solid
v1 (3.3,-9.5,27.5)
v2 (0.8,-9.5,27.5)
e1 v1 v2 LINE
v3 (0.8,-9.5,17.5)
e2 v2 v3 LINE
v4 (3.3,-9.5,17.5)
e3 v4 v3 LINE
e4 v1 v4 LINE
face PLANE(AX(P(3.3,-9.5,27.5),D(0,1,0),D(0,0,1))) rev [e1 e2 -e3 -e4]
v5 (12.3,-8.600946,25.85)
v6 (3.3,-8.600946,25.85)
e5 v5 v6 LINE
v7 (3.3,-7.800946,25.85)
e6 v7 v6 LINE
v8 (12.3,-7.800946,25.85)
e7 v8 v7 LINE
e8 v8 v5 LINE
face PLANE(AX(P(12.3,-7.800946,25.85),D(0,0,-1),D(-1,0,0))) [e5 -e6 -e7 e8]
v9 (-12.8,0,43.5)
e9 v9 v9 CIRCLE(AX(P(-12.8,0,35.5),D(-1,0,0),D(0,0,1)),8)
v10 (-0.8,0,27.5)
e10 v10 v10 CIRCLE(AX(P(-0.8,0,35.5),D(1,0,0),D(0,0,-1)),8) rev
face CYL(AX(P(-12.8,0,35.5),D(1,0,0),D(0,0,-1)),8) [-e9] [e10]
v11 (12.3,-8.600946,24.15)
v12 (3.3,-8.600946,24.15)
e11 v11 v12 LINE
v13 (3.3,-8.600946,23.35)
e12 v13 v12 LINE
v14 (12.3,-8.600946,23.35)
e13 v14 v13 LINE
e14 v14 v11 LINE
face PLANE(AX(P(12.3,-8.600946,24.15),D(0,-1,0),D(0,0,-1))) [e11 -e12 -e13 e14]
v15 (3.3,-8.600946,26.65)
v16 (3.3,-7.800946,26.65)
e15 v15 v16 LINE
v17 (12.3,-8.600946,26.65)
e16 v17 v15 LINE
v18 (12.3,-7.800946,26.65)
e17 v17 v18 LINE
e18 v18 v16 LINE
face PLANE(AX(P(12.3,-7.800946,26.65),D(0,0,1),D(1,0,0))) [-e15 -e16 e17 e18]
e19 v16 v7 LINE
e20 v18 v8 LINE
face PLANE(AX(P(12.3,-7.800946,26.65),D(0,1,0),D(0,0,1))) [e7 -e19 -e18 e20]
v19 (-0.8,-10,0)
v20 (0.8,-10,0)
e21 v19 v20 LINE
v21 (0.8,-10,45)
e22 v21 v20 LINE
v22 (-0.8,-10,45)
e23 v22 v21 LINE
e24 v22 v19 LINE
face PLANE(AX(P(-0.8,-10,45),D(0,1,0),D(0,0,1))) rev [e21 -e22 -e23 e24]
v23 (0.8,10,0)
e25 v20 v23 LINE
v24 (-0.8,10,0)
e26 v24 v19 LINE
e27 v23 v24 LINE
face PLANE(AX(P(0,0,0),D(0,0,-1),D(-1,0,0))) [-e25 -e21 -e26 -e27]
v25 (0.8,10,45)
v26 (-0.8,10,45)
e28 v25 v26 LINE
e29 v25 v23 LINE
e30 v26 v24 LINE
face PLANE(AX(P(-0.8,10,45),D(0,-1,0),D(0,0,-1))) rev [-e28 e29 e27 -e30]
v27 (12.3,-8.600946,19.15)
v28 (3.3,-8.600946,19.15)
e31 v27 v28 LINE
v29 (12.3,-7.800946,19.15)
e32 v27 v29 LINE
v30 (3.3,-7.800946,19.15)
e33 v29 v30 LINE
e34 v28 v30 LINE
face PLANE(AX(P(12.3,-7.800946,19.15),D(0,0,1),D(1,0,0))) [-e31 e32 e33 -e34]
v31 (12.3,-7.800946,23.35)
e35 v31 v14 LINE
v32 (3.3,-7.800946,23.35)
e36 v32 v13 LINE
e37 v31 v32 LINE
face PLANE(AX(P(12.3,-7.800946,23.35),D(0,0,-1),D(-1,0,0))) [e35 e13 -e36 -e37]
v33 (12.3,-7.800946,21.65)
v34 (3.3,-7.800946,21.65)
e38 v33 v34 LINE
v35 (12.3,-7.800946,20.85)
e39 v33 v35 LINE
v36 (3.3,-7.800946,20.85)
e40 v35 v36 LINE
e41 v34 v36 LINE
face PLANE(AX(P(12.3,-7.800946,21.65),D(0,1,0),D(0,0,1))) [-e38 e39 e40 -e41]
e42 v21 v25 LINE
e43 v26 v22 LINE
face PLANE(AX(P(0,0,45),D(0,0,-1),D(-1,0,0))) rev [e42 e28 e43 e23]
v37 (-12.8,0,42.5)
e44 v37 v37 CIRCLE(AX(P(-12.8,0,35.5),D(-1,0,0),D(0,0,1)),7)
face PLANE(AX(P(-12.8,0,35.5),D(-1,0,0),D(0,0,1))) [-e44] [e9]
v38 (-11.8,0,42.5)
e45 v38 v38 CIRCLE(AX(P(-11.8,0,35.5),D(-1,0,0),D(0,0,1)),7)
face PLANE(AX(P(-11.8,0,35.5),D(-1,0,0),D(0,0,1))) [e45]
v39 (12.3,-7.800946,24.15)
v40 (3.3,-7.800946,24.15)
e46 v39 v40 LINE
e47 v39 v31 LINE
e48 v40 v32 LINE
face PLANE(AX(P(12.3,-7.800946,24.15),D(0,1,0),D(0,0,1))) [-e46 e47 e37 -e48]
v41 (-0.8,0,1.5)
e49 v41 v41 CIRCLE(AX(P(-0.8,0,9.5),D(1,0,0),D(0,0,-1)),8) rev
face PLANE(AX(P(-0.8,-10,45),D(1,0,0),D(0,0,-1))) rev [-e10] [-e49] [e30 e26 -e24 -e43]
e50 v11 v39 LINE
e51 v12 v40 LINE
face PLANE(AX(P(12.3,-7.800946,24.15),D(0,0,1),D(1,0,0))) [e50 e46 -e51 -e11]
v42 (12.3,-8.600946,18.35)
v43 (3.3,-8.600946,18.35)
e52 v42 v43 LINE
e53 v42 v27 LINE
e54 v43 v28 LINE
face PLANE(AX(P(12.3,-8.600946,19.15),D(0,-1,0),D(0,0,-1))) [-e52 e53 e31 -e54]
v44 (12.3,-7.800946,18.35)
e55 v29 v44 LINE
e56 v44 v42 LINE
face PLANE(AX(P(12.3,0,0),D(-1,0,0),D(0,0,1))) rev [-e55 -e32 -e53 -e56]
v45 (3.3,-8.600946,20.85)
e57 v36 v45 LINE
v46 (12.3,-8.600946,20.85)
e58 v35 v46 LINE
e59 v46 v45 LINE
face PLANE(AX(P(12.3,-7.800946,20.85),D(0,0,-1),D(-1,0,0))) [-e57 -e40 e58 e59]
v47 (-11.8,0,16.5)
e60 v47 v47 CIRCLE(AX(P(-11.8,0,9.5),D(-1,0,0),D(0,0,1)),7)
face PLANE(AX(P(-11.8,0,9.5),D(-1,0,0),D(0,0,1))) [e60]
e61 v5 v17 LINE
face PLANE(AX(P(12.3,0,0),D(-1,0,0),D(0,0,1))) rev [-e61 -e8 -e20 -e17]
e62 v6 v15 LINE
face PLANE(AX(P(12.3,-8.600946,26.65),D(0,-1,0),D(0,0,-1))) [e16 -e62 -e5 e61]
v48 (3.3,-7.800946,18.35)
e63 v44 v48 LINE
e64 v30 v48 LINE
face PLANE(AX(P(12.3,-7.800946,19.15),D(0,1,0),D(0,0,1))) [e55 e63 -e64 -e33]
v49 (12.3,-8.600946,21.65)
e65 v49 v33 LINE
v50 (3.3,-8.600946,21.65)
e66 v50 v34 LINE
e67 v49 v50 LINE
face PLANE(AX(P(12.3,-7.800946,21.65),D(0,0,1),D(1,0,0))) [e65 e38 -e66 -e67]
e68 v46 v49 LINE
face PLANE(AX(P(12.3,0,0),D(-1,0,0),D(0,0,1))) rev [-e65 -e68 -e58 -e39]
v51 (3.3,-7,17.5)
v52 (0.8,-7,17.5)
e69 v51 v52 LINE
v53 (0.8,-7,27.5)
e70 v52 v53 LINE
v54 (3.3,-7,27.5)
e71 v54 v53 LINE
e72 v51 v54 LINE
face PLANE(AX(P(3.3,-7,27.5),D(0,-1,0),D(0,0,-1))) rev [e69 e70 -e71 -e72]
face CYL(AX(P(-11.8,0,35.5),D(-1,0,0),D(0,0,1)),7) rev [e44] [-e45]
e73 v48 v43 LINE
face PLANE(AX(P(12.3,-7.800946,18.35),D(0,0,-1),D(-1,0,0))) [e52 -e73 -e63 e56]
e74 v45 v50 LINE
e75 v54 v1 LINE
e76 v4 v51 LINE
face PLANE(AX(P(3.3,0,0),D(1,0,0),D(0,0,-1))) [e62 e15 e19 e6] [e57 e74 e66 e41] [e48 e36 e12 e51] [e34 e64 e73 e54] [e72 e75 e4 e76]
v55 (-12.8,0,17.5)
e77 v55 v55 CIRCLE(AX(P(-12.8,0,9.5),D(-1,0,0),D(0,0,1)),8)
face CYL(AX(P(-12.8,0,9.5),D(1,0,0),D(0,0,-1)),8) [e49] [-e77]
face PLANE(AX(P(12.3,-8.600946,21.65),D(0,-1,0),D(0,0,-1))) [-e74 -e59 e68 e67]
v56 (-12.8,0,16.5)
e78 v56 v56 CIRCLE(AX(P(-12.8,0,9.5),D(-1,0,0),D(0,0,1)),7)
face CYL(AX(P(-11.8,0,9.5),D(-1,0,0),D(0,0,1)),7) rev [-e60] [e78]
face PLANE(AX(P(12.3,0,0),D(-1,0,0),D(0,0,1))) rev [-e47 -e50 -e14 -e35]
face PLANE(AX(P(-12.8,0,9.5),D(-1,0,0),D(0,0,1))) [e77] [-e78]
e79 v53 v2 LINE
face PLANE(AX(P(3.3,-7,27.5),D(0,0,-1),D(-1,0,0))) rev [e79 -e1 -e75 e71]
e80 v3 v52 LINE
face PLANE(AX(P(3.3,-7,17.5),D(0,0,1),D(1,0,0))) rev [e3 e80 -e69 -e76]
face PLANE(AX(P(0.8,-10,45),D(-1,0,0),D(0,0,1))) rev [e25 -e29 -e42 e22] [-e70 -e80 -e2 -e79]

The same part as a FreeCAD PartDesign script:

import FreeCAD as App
import Part
import Sketcher

V = App.Vector
Q = App.Units.Quantity


def add_polygon(sketch, points):
    """Adds a closed chain of lines whose ends are joined by coincident constraints."""
    first, n = sketch.GeometryCount, len(points)
    for a, b in zip(points, points[1:] + points[:1]):
        sketch.addGeometry(Part.LineSegment(App.Vector(*a, 0), App.Vector(*b, 0)), False)
    for i in range(n):
        sketch.addConstraint(Sketcher.Constraint("Coincident", first + i, 2, first + (i + 1) % n, 1))

doc = App.newDocument("Part")
body = doc.addObject("PartDesign::Body", "Body")

# Sketch on XY plane
sketch1 = body.newObject("Sketcher::SketchObject", "Sketch")
sketch1.AttachmentSupport = (doc.getObject("XY_Plane"), [""])
sketch1.MapMode = "FlatFace"
add_polygon(sketch1, [(-0.8, 10), (-0.8, -10), (0.8, -10), (0.8, 10)])  # lines 0-3
sketch1.addConstraint(Sketcher.Constraint("Vertical", 0))
sketch1.addConstraint(Sketcher.Constraint("Horizontal", 1))
sketch1.addConstraint(Sketcher.Constraint("Vertical", 2))
sketch1.addConstraint(Sketcher.Constraint("Horizontal", 3))
sketch1.addConstraint(Sketcher.Constraint("Symmetric", 0, 2, 2, 2, -1, 1))
sketch1.addConstraint(Sketcher.Constraint("DistanceY", 0, 2, 0, 1, Q("20 mm")))
sketch1.addConstraint(Sketcher.Constraint("DistanceX", 1, 1, 1, 2, Q("1.6 mm")))
pad1 = body.newObject("PartDesign::Pad", "Pad")
pad1.Profile = sketch1
pad1.Length = 45

# Sketch on YZ plane
sketch2 = body.newObject("Sketcher::SketchObject", "Sketch001")
sketch2.AttachmentSupport = (doc.getObject("YZ_Plane"), [""])
sketch2.MapMode = "FlatFace"
sketch2.AttachmentOffset = App.Placement(V(0, 0, 0.8), App.Rotation())
add_polygon(sketch2, [(-7, 27.5), (-9.5, 27.5), (-9.5, 17.5), (-7, 17.5)])  # lines 0-3
sketch2.addConstraint(Sketcher.Constraint("Horizontal", 0))
sketch2.addConstraint(Sketcher.Constraint("Vertical", 1))
sketch2.addConstraint(Sketcher.Constraint("Horizontal", 2))
sketch2.addConstraint(Sketcher.Constraint("Vertical", 3))
sketch2.addConstraint(Sketcher.Constraint("DistanceY", 1, 2, 1, 1, Q("10 mm")))
sketch2.addConstraint(Sketcher.Constraint("DistanceX", 0, 2, 0, 1, Q("2.5 mm")))
sketch2.addConstraint(Sketcher.Constraint("DistanceX", 2, 2, -1, 1, Q("7 mm")))
sketch2.addConstraint(Sketcher.Constraint("DistanceY", -1, 1, 0, 2, Q("27.5 mm")))
pad2 = body.newObject("PartDesign::Pad", "Pad001")
pad2.Profile = sketch2
pad2.Length = 2.5

# Sketch on YZ plane
sketch3 = body.newObject("Sketcher::SketchObject", "Sketch002")
sketch3.AttachmentSupport = (doc.getObject("YZ_Plane"), [""])
sketch3.MapMode = "FlatFace"
sketch3.AttachmentOffset = App.Placement(V(0, 0, 3.3), App.Rotation())
add_polygon(sketch3, [(-7.800946, 26.65), (-7.800946, 25.85), (-8.600946, 25.85), (-8.600946, 26.65)])  # lines 0-3
add_polygon(sketch3, [(-7.800946, 24.15), (-7.800946, 23.35), (-8.600946, 23.35), (-8.600946, 24.15)])  # lines 4-7
add_polygon(sketch3, [(-7.800946, 21.65), (-7.800946, 20.85), (-8.600946, 20.85), (-8.600946, 21.65)])  # lines 8-11
add_polygon(sketch3, [(-7.800946, 19.15), (-7.800946, 18.35), (-8.600946, 18.35), (-8.600946, 19.15)])  # lines 12-15
sketch3.addConstraint(Sketcher.Constraint("Vertical", 0))
sketch3.addConstraint(Sketcher.Constraint("Horizontal", 1))
sketch3.addConstraint(Sketcher.Constraint("Vertical", 2))
sketch3.addConstraint(Sketcher.Constraint("Horizontal", 3))
sketch3.addConstraint(Sketcher.Constraint("Vertical", 4))
sketch3.addConstraint(Sketcher.Constraint("Horizontal", 5))
sketch3.addConstraint(Sketcher.Constraint("Vertical", 6))
sketch3.addConstraint(Sketcher.Constraint("Horizontal", 7))
sketch3.addConstraint(Sketcher.Constraint("Vertical", 8))
sketch3.addConstraint(Sketcher.Constraint("Horizontal", 9))
sketch3.addConstraint(Sketcher.Constraint("Vertical", 10))
sketch3.addConstraint(Sketcher.Constraint("Horizontal", 11))
sketch3.addConstraint(Sketcher.Constraint("Vertical", 12))
sketch3.addConstraint(Sketcher.Constraint("Horizontal", 13))
sketch3.addConstraint(Sketcher.Constraint("Vertical", 14))
sketch3.addConstraint(Sketcher.Constraint("Horizontal", 15))
sketch3.addConstraint(Sketcher.Constraint("Vertical", 3, 2, 4, 2))
sketch3.addConstraint(Sketcher.Constraint("Vertical", 2, 2, 5, 2))
sketch3.addConstraint(Sketcher.Constraint("Vertical", 7, 2, 8, 2))
sketch3.addConstraint(Sketcher.Constraint("Vertical", 6, 2, 9, 2))
sketch3.addConstraint(Sketcher.Constraint("Vertical", 11, 2, 12, 2))
sketch3.addConstraint(Sketcher.Constraint("Vertical", 10, 2, 13, 2))
sketch3.addConstraint(Sketcher.Constraint("Equal", 15, 0))
sketch3.addConstraint(Sketcher.Constraint("Equal", 2, 4))
sketch3.addConstraint(Sketcher.Constraint("Equal", 6, 8))
sketch3.addConstraint(Sketcher.Constraint("Equal", 10, 12))
sketch3.addConstraint(Sketcher.Constraint("DistanceX", 1, 2, 1, 1, Q("0.8 mm")))
sketch3.addConstraint(Sketcher.Constraint("DistanceY", 8, 2, 0, 2, Q("5 mm")))
sketch3.addConstraint(Sketcher.Constraint("DistanceY", 12, 2, 4, 2, Q("5 mm")))
sketch3.addConstraint(Sketcher.Constraint("DistanceY", 4, 2, 0, 2, Q("2.5 mm")))
sketch3.addConstraint(Sketcher.Constraint("DistanceY", -1, 1, 0, 2, Q("25.85 mm")))
sketch3.addConstraint(Sketcher.Constraint("DistanceX", 0, 2, -1, 1, Q("7.800946 mm")))
pad3 = body.newObject("PartDesign::Pad", "Pad002")
pad3.Profile = sketch3
pad3.Length = 9

# Sketch on YZ plane
sketch4 = body.newObject("Sketcher::SketchObject", "Sketch003")
sketch4.AttachmentSupport = (doc.getObject("YZ_Plane"), [""])
sketch4.MapMode = "FlatFace"
sketch4.AttachmentOffset = App.Placement(V(0, 0, -0.8), App.Rotation())
sketch4.addGeometry(Part.Circle(V(0, 9.5, 0), V(0, 0, 1), 8), False)
sketch4.addGeometry(Part.Circle(V(0, 35.5, 0), V(0, 0, 1), 8), False)
sketch4.addConstraint(Sketcher.Constraint("Equal", 0, 1))
sketch4.addConstraint(Sketcher.Constraint("PointOnObject", 0, 3, -2))
sketch4.addConstraint(Sketcher.Constraint("PointOnObject", 1, 3, -2))
sketch4.addConstraint(Sketcher.Constraint("Diameter", 0, Q("16 mm")))
sketch4.addConstraint(Sketcher.Constraint("DistanceY", 0, 3, 1, 3, Q("26 mm")))
sketch4.addConstraint(Sketcher.Constraint("DistanceY", -1, 1, 0, 3, Q("9.5 mm")))
pad4 = body.newObject("PartDesign::Pad", "Pad003")
pad4.Profile = sketch4
pad4.Length = 12
pad4.Reversed = True

# Sketch on YZ plane
sketch5 = body.newObject("Sketcher::SketchObject", "Sketch004")
sketch5.AttachmentSupport = (doc.getObject("YZ_Plane"), [""])
sketch5.MapMode = "FlatFace"
sketch5.AttachmentOffset = App.Placement(V(0, 0, -12.8), App.Rotation())
sketch5.addGeometry(Part.Circle(V(0, 35.5, 0), V(0, 0, 1), 7), False)
sketch5.addGeometry(Part.Circle(V(0, 9.5, 0), V(0, 0, 1), 7), False)
sketch5.addConstraint(Sketcher.Constraint("Equal", 0, 1))
sketch5.addConstraint(Sketcher.Constraint("PointOnObject", 0, 3, -2))
sketch5.addConstraint(Sketcher.Constraint("PointOnObject", 1, 3, -2))
sketch5.addConstraint(Sketcher.Constraint("Diameter", 0, Q("14 mm")))
sketch5.addConstraint(Sketcher.Constraint("DistanceY", 1, 3, 0, 3, Q("26 mm")))
sketch5.addConstraint(Sketcher.Constraint("DistanceY", -1, 1, 0, 3, Q("35.5 mm")))
pocket1 = body.newObject("PartDesign::Pocket", "Pocket")
pocket1.Profile = sketch5
pocket1.Length = 1
pocket1.Reversed = True

doc.recompute()
